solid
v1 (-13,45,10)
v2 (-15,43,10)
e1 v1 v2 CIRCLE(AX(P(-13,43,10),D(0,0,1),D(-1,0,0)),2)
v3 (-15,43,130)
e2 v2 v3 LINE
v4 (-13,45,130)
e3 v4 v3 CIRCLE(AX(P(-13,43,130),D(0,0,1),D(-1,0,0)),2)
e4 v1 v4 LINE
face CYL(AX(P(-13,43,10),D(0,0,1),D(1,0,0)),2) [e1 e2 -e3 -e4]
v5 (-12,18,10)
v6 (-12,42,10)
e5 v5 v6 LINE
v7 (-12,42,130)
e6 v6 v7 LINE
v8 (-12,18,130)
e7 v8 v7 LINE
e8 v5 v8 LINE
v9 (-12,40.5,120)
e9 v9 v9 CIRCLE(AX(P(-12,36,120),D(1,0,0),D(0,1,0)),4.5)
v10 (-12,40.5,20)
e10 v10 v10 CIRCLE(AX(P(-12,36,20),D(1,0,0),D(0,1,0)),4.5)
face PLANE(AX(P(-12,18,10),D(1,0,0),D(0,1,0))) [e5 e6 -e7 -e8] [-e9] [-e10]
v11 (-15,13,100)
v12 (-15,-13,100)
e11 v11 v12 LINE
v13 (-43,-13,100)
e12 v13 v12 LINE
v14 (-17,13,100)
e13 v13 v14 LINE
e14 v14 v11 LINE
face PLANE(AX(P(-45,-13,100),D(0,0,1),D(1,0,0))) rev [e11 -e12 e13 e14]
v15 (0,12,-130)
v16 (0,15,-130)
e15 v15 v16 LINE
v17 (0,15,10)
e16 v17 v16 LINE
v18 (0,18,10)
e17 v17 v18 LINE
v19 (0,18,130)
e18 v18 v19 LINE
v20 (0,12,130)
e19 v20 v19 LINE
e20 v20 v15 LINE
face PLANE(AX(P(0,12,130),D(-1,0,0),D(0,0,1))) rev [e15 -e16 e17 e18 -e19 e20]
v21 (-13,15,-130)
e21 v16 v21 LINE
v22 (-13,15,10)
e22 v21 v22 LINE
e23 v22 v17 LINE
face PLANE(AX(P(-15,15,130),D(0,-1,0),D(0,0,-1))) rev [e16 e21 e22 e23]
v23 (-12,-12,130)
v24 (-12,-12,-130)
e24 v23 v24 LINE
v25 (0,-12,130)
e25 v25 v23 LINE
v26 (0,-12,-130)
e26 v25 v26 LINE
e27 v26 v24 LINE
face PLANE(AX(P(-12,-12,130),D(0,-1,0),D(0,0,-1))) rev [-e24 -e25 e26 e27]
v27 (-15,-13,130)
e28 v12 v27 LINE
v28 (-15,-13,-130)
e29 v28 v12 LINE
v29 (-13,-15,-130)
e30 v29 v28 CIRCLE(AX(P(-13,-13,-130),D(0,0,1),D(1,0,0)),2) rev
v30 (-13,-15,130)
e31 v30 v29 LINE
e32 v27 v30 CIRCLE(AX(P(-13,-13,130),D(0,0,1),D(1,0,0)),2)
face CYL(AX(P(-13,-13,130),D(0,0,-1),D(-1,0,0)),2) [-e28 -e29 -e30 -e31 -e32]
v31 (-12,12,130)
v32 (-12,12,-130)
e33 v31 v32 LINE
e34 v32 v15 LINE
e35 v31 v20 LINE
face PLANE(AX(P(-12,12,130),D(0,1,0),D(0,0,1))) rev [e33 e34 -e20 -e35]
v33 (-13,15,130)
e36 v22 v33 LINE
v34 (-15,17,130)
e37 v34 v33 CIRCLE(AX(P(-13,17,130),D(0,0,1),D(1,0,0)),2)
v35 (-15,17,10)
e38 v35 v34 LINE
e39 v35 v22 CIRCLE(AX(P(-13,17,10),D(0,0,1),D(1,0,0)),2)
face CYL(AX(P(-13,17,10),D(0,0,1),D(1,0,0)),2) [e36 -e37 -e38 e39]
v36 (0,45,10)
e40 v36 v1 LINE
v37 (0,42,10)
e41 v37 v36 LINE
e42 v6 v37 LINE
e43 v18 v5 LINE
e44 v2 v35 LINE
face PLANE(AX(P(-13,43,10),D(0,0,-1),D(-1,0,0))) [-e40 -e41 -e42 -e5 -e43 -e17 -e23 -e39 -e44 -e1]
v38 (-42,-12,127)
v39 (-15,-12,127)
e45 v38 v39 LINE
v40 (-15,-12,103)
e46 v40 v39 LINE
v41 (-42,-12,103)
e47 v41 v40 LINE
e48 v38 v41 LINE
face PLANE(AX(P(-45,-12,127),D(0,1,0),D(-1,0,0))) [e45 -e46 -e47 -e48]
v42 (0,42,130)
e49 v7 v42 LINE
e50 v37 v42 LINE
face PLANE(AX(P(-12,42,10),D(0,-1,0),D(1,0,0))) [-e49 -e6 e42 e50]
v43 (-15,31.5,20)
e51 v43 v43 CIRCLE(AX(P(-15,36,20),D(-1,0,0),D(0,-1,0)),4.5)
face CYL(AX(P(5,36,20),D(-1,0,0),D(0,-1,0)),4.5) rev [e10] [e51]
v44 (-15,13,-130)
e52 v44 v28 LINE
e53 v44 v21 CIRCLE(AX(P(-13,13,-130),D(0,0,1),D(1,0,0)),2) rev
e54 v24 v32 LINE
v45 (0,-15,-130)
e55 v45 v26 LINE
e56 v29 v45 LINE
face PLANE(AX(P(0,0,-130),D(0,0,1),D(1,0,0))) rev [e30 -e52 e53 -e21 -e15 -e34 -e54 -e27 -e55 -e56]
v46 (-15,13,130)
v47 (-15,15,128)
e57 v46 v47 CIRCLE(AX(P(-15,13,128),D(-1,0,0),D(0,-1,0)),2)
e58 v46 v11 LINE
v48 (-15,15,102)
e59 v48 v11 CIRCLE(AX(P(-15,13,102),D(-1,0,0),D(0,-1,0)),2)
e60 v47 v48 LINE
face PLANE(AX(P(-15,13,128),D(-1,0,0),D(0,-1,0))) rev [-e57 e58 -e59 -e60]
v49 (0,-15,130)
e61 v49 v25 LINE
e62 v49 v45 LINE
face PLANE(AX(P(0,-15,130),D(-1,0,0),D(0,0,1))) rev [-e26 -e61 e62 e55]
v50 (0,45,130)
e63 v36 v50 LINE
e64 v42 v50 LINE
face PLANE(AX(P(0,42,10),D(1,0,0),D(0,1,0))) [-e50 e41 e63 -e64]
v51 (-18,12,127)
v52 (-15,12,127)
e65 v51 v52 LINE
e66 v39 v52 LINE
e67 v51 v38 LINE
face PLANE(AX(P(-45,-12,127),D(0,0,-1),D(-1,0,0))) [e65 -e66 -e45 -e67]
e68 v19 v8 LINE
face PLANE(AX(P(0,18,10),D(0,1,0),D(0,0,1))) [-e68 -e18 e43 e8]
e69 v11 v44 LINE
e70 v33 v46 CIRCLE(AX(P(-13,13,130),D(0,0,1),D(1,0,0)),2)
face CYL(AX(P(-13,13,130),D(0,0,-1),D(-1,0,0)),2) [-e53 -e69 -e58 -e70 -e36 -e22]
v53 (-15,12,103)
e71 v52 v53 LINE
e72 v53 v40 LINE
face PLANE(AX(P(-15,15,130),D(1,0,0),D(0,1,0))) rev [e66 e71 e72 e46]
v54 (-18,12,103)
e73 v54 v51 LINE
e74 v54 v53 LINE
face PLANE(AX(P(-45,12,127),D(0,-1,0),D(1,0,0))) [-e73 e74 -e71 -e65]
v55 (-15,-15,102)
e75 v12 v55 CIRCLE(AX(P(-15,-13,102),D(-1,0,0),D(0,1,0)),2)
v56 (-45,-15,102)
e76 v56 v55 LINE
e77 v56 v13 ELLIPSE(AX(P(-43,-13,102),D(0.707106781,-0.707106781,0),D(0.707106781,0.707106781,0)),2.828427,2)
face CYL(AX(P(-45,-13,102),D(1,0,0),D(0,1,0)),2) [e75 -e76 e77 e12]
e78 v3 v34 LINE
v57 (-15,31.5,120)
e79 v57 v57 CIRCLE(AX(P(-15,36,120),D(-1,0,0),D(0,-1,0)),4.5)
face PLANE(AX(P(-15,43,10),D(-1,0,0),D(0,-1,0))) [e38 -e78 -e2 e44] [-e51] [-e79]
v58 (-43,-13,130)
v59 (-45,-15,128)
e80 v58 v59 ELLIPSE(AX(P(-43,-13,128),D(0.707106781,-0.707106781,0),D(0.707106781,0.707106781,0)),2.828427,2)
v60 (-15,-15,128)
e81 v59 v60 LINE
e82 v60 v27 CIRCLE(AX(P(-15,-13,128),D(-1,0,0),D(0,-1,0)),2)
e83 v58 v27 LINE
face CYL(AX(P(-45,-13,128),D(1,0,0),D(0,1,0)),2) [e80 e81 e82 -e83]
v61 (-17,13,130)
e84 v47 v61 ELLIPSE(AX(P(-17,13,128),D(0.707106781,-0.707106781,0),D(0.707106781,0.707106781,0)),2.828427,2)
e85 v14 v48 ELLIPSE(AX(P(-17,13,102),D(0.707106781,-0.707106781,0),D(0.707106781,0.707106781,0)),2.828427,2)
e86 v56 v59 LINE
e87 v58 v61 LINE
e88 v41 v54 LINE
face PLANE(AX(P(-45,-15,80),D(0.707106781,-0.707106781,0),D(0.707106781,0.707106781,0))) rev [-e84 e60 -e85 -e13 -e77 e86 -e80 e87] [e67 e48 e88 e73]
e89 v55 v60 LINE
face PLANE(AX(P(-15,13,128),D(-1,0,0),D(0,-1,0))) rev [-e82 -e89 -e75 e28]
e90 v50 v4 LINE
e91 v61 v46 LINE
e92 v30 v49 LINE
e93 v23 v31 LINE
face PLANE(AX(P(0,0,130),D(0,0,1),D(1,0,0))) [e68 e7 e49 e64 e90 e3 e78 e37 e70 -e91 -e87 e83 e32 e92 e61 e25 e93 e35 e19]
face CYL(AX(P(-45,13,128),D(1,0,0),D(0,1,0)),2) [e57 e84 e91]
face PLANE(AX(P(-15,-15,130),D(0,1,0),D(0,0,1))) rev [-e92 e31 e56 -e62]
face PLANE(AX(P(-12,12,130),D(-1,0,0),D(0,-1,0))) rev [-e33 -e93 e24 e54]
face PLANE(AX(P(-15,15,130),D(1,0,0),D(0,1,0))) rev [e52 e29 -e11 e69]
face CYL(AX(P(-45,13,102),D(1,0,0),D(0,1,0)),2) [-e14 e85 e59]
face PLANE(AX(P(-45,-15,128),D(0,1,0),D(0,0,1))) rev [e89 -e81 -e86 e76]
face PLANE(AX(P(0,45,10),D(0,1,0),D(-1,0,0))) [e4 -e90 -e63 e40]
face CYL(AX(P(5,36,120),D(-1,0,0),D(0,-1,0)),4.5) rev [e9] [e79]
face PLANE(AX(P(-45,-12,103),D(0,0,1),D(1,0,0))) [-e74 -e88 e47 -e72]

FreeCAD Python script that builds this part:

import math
import FreeCAD as App
import Part
import Sketcher
Q = App.Units.Quantity


def edges_at(feature, points):
    """Names of the edges that pass closest to the given points."""
    edges = feature.Shape.Edges
    near = lambda p: min(range(len(edges)), key=lambda i: edges[i].distToShape(Part.Vertex(*p))[0])
    return sorted({f"Edge{near(p) + 1}" for p in points})


def add_polygon(sketch, points):
    """Adds a closed chain of lines whose ends are joined by coincident constraints."""
    first, n = sketch.GeometryCount, len(points)
    for a, b in zip(points, points[1:] + points[:1]):
        sketch.addGeometry(Part.LineSegment(App.Vector(*a, 0), App.Vector(*b, 0)), False)
    for i in range(n):
        sketch.addConstraint(Sketcher.Constraint("Coincident", first + i, 2, first + (i + 1) % n, 1))

doc = App.newDocument("Part")
body = doc.addObject("PartDesign::Body", "Body")

# Sketch on XY plane
sketch1 = doc.addObject("Sketcher::SketchObject", "Sketch")
body.addObject(sketch1)
sketch1.AttachmentSupport = (doc.XY_Plane, [""])
sketch1.MapMode = "FlatFace"
add_polygon(sketch1, [(-12, 12), (0, 12), (0, 15), (-15, 15), (-15, -15), (0, -15), (0, -12), (-12, -12)])  # lines 0-7
sketch1.addConstraint(Sketcher.Constraint("Horizontal", 0))
sketch1.addConstraint(Sketcher.Constraint("Vertical", 1))
sketch1.addConstraint(Sketcher.Constraint("Horizontal", 2))
sketch1.addConstraint(Sketcher.Constraint("Vertical", 3))
sketch1.addConstraint(Sketcher.Constraint("Horizontal", 4))
sketch1.addConstraint(Sketcher.Constraint("Vertical", 5))
sketch1.addConstraint(Sketcher.Constraint("Horizontal", 6))
sketch1.addConstraint(Sketcher.Constraint("Vertical", 7))
sketch1.addConstraint(Sketcher.Constraint("Symmetric", 1, 2, 4, 2, -1, 1))
sketch1.addConstraint(Sketcher.Constraint("Symmetric", 0, 2, 5, 2, -1))
sketch1.addConstraint(Sketcher.Constraint("DistanceX", 0, 1, 0, 2, Q("12 mm")))
sketch1.addConstraint(Sketcher.Constraint("DistanceX", 2, 2, 2, 1, Q("15 mm")))
sketch1.addConstraint(Sketcher.Constraint("DistanceY", 1, 1, 1, 2, Q("3 mm")))
sketch1.addConstraint(Sketcher.Constraint("DistanceY", 3, 2, 3, 1, Q("30 mm")))
pad1 = doc.addObject("PartDesign::Pad", "Pad")
body.addObject(pad1)
pad1.Profile = sketch1
pad1.Length = 260
pad1.Midplane = True
doc.recompute()

fillet = doc.addObject("PartDesign::Fillet", "Fillet")
body.addObject(fillet)
fillet.Base = (pad1, edges_at(pad1, [(-15, 15, 0), (-15, -15, 0)]))
fillet.Radius = 2

# Sketch on XY plane
sketch2 = doc.addObject("Sketcher::SketchObject", "Sketch001")
body.addObject(sketch2)
sketch2.AttachmentSupport = (doc.XY_Plane, [""])
sketch2.MapMode = "FlatFace"
sketch2.AttachmentOffset = App.Placement(App.Vector(0, 0, 130), App.Rotation())
sketch2.addGeometry(Part.LineSegment(App.Vector(-15, 43, 0), App.Vector(-15, 17, 0)), False)
sketch2.addGeometry(Part.ArcOfCircle(Part.Circle(App.Vector(-13, 17, 0), App.Vector(0, 0, 1), 2), math.radians(-180), math.radians(-90)), False)
sketch2.addGeometry(Part.LineSegment(App.Vector(-13, 15, 0), App.Vector(0, 15, 0)), False)
sketch2.addGeometry(Part.LineSegment(App.Vector(0, 15, 0), App.Vector(0, 18, 0)), False)
sketch2.addGeometry(Part.LineSegment(App.Vector(0, 18, 0), App.Vector(-12, 18, 0)), False)
sketch2.addGeometry(Part.LineSegment(App.Vector(-12, 18, 0), App.Vector(-12, 42, 0)), False)
sketch2.addGeometry(Part.LineSegment(App.Vector(-12, 42, 0), App.Vector(0, 42, 0)), False)
sketch2.addGeometry(Part.LineSegment(App.Vector(0, 42, 0), App.Vector(0, 45, 0)), False)
sketch2.addGeometry(Part.LineSegment(App.Vector(0, 45, 0), App.Vector(-13, 45, 0)), False)
sketch2.addGeometry(Part.ArcOfCircle(Part.Circle(App.Vector(-13, 43, 0), App.Vector(0, 0, 1), 2), math.radians(90), math.radians(180)), False)
sketch2.addConstraint(Sketcher.Constraint("Tangent", 0, 2, 1, 1))
sketch2.addConstraint(Sketcher.Constraint("Tangent", 1, 2, 2, 1))
sketch2.addConstraint(Sketcher.Constraint("Coincident", 2, 2, 3, 1))
sketch2.addConstraint(Sketcher.Constraint("Coincident", 3, 2, 4, 1))
sketch2.addConstraint(Sketcher.Constraint("Coincident", 4, 2, 5, 1))
sketch2.addConstraint(Sketcher.Constraint("Coincident", 5, 2, 6, 1))
sketch2.addConstraint(Sketcher.Constraint("Coincident", 6, 2, 7, 1))
sketch2.addConstraint(Sketcher.Constraint("Coincident", 7, 2, 8, 1))
sketch2.addConstraint(Sketcher.Constraint("Tangent", 8, 2, 9, 1))
sketch2.addConstraint(Sketcher.Constraint("Tangent", 9, 2, 0, 1))
sketch2.addConstraint(Sketcher.Constraint("Vertical", 0))
sketch2.addConstraint(Sketcher.Constraint("Horizontal", 2))
sketch2.addConstraint(Sketcher.Constraint("Vertical", 3))
sketch2.addConstraint(Sketcher.Constraint("Horizontal", 4))
sketch2.addConstraint(Sketcher.Constraint("Vertical", 5))
sketch2.addConstraint(Sketcher.Constraint("Horizontal", 6))
sketch2.addConstraint(Sketcher.Constraint("Vertical", 7))
sketch2.addConstraint(Sketcher.Constraint("Horizontal", 8))
sketch2.addConstraint(Sketcher.Constraint("Equal", 1, 9))
sketch2.addConstraint(Sketcher.Constraint("PointOnObject", 2, 2, -2))
sketch2.addConstraint(Sketcher.Constraint("PointOnObject", 6, 2, -2))
sketch2.addConstraint(Sketcher.Constraint("Equal", 3, 7))
sketch2.addConstraint(Sketcher.Constraint("Radius", 1, Q("2 mm")))
sketch2.addConstraint(Sketcher.Constraint("DistanceX", 2, 1, 2, 2, Q("13 mm")))
sketch2.addConstraint(Sketcher.Constraint("DistanceX", 4, 2, 4, 1, Q("12 mm")))
sketch2.addConstraint(Sketcher.Constraint("DistanceY", 0, 2, 0, 1, Q("26 mm")))
sketch2.addConstraint(Sketcher.Constraint("DistanceY", 3, 1, 3, 2, Q("3 mm")))
sketch2.addConstraint(Sketcher.Constraint("DistanceY", -1, 1, 1, 3, Q("17 mm")))
pad2 = doc.addObject("PartDesign::Pad", "Pad001")
body.addObject(pad2)
pad2.Profile = sketch2
pad2.Length = 120
pad2.Reversed = True

# Sketch on YZ plane
sketch3 = doc.addObject("Sketcher::SketchObject", "Sketch002")
body.addObject(sketch3)
sketch3.AttachmentSupport = (doc.YZ_Plane, [""])
sketch3.MapMode = "FlatFace"
sketch3.AttachmentOffset = App.Placement(App.Vector(0, 0, -15), App.Rotation())
sketch3.addGeometry(Part.Circle(App.Vector(36, 120, 0), App.Vector(0, 0, 1), 4.5), False)
sketch3.addGeometry(Part.Circle(App.Vector(36, 20, 0), App.Vector(0, 0, 1), 4.5), False)
sketch3.addConstraint(Sketcher.Constraint("Equal", 0, 1))
sketch3.addConstraint(Sketcher.Constraint("Vertical", 0, 3, 1, 3))
sketch3.addConstraint(Sketcher.Constraint("Diameter", 0, Q("9 mm")))
sketch3.addConstraint(Sketcher.Constraint("DistanceX", -1, 1, 0, 3, Q("36 mm")))
sketch3.addConstraint(Sketcher.Constraint("DistanceY", -1, 1, 0, 3, Q("120 mm")))
sketch3.addConstraint(Sketcher.Constraint("DistanceY", -1, 1, 1, 3, Q("20 mm")))
pocket1 = doc.addObject("PartDesign::Pocket", "Pocket")
body.addObject(pocket1)
pocket1.Profile = sketch3
pocket1.Length = 20
pocket1.Reversed = True

# Sketch on YZ plane
sketch4 = doc.addObject("Sketcher::SketchObject", "Sketch003")
body.addObject(sketch4)
sketch4.AttachmentSupport = (doc.YZ_Plane, [""])
sketch4.MapMode = "FlatFace"
sketch4.AttachmentOffset = App.Placement(App.Vector(0, 0, -15), App.Rotation())
sketch4.addGeometry(Part.LineSegment(App.Vector(-15, 102, 0), App.Vector(-15, 128, 0)), False)  # 0
sketch4.addGeometry(Part.ArcOfCircle(Part.Circle(App.Vector(-13, 128, 0), App.Vector(0, 0, 1), 2), math.radians(90), math.radians(180)), False)  # 1
sketch4.addGeometry(Part.LineSegment(App.Vector(-13, 130, 0), App.Vector(13, 130, 0)), False)  # 2
sketch4.addGeometry(Part.ArcOfCircle(Part.Circle(App.Vector(13, 128, 0), App.Vector(0, 0, 1), 2), math.radians(0), math.radians(90)), False)  # 3
sketch4.addGeometry(Part.LineSegment(App.Vector(15, 128, 0), App.Vector(15, 102, 0)), False)  # 4
sketch4.addGeometry(Part.ArcOfCircle(Part.Circle(App.Vector(13, 102, 0), App.Vector(0, 0, 1), 2), math.radians(-90), math.radians(0)), False)  # 5
sketch4.addGeometry(Part.LineSegment(App.Vector(13, 100, 0), App.Vector(-13, 100, 0)), False)  # 6
sketch4.addGeometry(Part.ArcOfCircle(Part.Circle(App.Vector(-13, 102, 0), App.Vector(0, 0, 1), 2), math.radians(-180), math.radians(-90)), False)  # 7
add_polygon(sketch4, [(-12, 103), (12, 103), (12, 127), (-12, 127)])  # lines 8-11
sketch4.addConstraint(Sketcher.Constraint("Tangent", 0, 2, 1, 2))
sketch4.addConstraint(Sketcher.Constraint("Tangent", 1, 1, 2, 1))
sketch4.addConstraint(Sketcher.Constraint("Tangent", 2, 2, 3, 2))
sketch4.addConstraint(Sketcher.Constraint("Tangent", 3, 1, 4, 1))
sketch4.addConstraint(Sketcher.Constraint("Tangent", 4, 2, 5, 2))
sketch4.addConstraint(Sketcher.Constraint("Tangent", 5, 1, 6, 1))
sketch4.addConstraint(Sketcher.Constraint("Tangent", 6, 2, 7, 2))
sketch4.addConstraint(Sketcher.Constraint("Tangent", 7, 1, 0, 1))
sketch4.addConstraint(Sketcher.Constraint("Vertical", 0))
sketch4.addConstraint(Sketcher.Constraint("Horizontal", 2))
sketch4.addConstraint(Sketcher.Constraint("Vertical", 4))
sketch4.addConstraint(Sketcher.Constraint("Horizontal", 6))
sketch4.addConstraint(Sketcher.Constraint("Horizontal", 8))
sketch4.addConstraint(Sketcher.Constraint("Vertical", 9))
sketch4.addConstraint(Sketcher.Constraint("Horizontal", 10))
sketch4.addConstraint(Sketcher.Constraint("Vertical", 11))
sketch4.addConstraint(Sketcher.Constraint("Equal", 1, 3))
sketch4.addConstraint(Sketcher.Constraint("Equal", 3, 5))
sketch4.addConstraint(Sketcher.Constraint("Equal", 5, 7))
sketch4.addConstraint(Sketcher.Constraint("Equal", 6, 0))
sketch4.addConstraint(Sketcher.Constraint("Equal", 10, 9))
sketch4.addConstraint(Sketcher.Constraint("Radius", 1, Q("2 mm")))
sketch4.addConstraint(Sketcher.Constraint("DistanceX", 2, 1, 2, 2, Q("26 mm")))
sketch4.addConstraint(Sketcher.Constraint("DistanceX", 8, 1, 8, 2, Q("24 mm")))
sketch4.addConstraint(Sketcher.Constraint("DistanceX", 1, 3, -1, 1, Q("13 mm")))
sketch4.addConstraint(Sketcher.Constraint("DistanceY", -1, 1, 1, 3, Q("128 mm")))
sketch4.addConstraint(Sketcher.Constraint("DistanceX", -1, 1, 8, 2, Q("12 mm")))
sketch4.addConstraint(Sketcher.Constraint("DistanceY", -1, 1, 8, 2, Q("103 mm")))
pad3 = doc.addObject("PartDesign::Pad", "Pad002")
body.addObject(pad3)
pad3.Profile = sketch4
pad3.Length = 30
pad3.Reversed = True

# Sketch on XY plane
sketch5 = doc.addObject("Sketcher::SketchObject", "Sketch004")
body.addObject(sketch5)
sketch5.AttachmentSupport = (doc.XY_Plane, [""])
sketch5.MapMode = "FlatFace"
sketch5.AttachmentOffset = App.Placement(App.Vector(0, 0, 130), App.Rotation())
add_polygon(sketch5, [(-45, -15), (-15, 15), (-45, 15)])  # lines 0-2
sketch5.addConstraint(Sketcher.Constraint("Horizontal", 1))
sketch5.addConstraint(Sketcher.Constraint("Vertical", 2))
sketch5.addConstraint(Sketcher.Constraint("Equal", 1, 2))
sketch5.addConstraint(Sketcher.Constraint("DistanceX", 1, 2, 1, 1, Q("30 mm")))
sketch5.addConstraint(Sketcher.Constraint("DistanceX", 0, 2, -1, 1, Q("15 mm")))
sketch5.addConstraint(Sketcher.Constraint("DistanceY", -1, 1, 0, 2, Q("15 mm")))
pocket2 = doc.addObject("PartDesign::Pocket", "Pocket001")
body.addObject(pocket2)
pocket2.Profile = sketch5
pocket2.Length = 50

doc.recompute()
